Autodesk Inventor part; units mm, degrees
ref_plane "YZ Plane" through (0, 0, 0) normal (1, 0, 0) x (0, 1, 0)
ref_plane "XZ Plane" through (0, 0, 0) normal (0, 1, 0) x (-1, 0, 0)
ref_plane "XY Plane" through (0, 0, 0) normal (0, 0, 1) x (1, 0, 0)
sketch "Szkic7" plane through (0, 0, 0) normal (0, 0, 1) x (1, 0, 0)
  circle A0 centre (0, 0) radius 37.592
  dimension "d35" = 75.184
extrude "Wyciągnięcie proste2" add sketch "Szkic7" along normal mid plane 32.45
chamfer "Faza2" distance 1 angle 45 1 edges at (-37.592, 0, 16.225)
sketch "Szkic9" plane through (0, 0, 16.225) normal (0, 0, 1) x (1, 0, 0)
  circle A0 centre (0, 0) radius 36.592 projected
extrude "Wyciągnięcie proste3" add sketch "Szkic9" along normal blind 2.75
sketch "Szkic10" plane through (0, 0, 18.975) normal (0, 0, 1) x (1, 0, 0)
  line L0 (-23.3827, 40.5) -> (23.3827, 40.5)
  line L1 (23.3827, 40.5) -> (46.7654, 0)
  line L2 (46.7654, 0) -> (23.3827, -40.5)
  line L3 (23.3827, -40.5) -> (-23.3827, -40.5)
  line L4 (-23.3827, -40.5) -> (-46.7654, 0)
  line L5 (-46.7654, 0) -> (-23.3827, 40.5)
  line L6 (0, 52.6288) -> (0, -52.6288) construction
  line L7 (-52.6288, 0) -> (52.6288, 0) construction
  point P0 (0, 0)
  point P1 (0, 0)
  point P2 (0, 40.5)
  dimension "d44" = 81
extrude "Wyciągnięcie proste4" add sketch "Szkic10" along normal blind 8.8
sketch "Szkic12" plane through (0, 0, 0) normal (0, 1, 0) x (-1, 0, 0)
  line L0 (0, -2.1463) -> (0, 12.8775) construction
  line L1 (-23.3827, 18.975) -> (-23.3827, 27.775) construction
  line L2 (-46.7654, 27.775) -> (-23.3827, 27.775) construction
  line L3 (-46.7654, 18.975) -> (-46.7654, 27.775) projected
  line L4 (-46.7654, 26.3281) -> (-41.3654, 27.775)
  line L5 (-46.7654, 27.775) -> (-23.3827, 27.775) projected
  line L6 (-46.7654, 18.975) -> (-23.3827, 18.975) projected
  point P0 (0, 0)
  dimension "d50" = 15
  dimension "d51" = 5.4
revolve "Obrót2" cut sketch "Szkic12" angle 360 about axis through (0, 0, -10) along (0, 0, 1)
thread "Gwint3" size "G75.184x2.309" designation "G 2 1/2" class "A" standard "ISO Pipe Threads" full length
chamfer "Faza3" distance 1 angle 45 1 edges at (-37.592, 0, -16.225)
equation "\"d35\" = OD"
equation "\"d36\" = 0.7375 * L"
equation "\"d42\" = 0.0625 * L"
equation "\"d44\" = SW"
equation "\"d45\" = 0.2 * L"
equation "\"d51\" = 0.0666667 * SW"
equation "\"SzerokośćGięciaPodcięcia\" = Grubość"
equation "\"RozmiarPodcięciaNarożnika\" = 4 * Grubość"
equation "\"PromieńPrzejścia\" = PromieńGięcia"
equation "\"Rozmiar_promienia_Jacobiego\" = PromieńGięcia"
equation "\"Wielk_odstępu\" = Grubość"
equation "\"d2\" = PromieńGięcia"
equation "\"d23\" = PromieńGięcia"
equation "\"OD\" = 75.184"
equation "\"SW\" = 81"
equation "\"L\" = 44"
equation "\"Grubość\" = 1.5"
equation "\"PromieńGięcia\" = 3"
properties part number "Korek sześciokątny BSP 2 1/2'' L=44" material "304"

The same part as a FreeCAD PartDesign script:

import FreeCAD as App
import Part
import Sketcher
from FreeCAD import Vector
Q = App.Units.Quantity


def edges_at(feature, points):
    """Names of the edges that pass closest to the given points."""
    edges = feature.Shape.Edges
    near = lambda p: min(range(len(edges)), key=lambda i: edges[i].distToShape(Part.Vertex(*p))[0])
    return sorted({f"Edge{near(p) + 1}" for p in points})

doc = App.newDocument("Part")
body = doc.addObject("PartDesign::Body", "Body")

# Sketch on XY plane
sketch1 = body.newObject("Sketcher::SketchObject", "Sketch")
sketch1.AttachmentSupport = (doc.getObject("XY_Plane"), [""])
sketch1.MapMode = "FlatFace"
sketch1.addGeometry(Part.Circle(Vector(0, 0, 0), Vector(0, 0, 1), 38), False)
sketch1.addConstraint([
    Sketcher.Constraint("Coincident", 0, 3, -1, 1),
    Sketcher.Constraint("Diameter", 0, Q("75.184 mm")),
])
pad1 = body.newObject("PartDesign::Pad", "Pad")
pad1.Profile = sketch1
pad1.Length = 32.45
pad1.Midplane = True
doc.recompute()

chamfer = body.newObject("PartDesign::Chamfer", "Chamfer")
chamfer.Base = (pad1, edges_at(pad1, [(-37.592, 0, 16.225)]))
chamfer.Size = 1

# Sketch on XY plane
sketch2 = body.newObject("Sketcher::SketchObject", "Sketch001")
sketch2.AttachmentSupport = (doc.getObject("XY_Plane"), [""])
sketch2.MapMode = "FlatFace"
sketch2.AttachmentOffset = App.Placement(Vector(0, 0, 16.225), App.Rotation())
sketch2.addGeometry(Part.Circle(Vector(0, 0, 0), Vector(0, 0, 1), 37), False)
sketch2.addConstraint([
    Sketcher.Constraint("Coincident", 0, 3, -1, 1),
    Sketcher.Constraint("Diameter", 0, Q("73.184 mm")),
])
pad2 = body.newObject("PartDesign::Pad", "Pad001")
pad2.Profile = sketch2
pad2.Length = 2.75

# Sketch on XY plane
sketch3 = body.newObject("Sketcher::SketchObject", "Sketch002")
sketch3.AttachmentSupport = (doc.getObject("XY_Plane"), [""])
sketch3.MapMode = "FlatFace"
sketch3.AttachmentOffset = App.Placement(Vector(0, 0, 18.975), App.Rotation())
sketch3.addGeometry([
    Part.LineSegment(Vector(23, 40, 0), Vector(-23, 40, 0)),  # 0
    Part.LineSegment(Vector(-23, 40, 0), Vector(-47, 0, 0)),  # 1
    Part.LineSegment(Vector(-47, 0, 0), Vector(-23, -40, 0)),  # 2
    Part.LineSegment(Vector(-23, -40, 0), Vector(23, -40, 0)),  # 3
    Part.LineSegment(Vector(23, -40, 0), Vector(47, 0, 0)),  # 4
    Part.LineSegment(Vector(47, 0, 0), Vector(23, 40, 0)),  # 5
], False)
sketch3.addConstraint([
    Sketcher.Constraint("Coincident", 0, 2, 1, 1),
    Sketcher.Constraint("Coincident", 1, 2, 2, 1),
    Sketcher.Constraint("Coincident", 2, 2, 3, 1),
    Sketcher.Constraint("Coincident", 3, 2, 4, 1),
    Sketcher.Constraint("Coincident", 4, 2, 5, 1),
    Sketcher.Constraint("Coincident", 5, 2, 0, 1),
    Sketcher.Constraint("Horizontal", 0),
    Sketcher.Constraint("Horizontal", 3),
    Sketcher.Constraint("Symmetric", 0, 2, 3, 2, -1, 1),
    Sketcher.Constraint("Symmetric", 1, 2, 4, 2, -1, 1),
    Sketcher.Constraint("PointOnObject", 1, 2, -1),
    Sketcher.Constraint("Parallel", 2, 5),
    Sketcher.Constraint("Vertical", 0, 2, 2, 2),
    Sketcher.Constraint("DistanceY", 2, 2, 0, 2, Q("81 mm")),
    Sketcher.Constraint("Angle", 1, Q("-120 deg")),
    Sketcher.Constraint("DistanceX", 0, 2, 0, 1, Q("46.7654 mm")),
])
pad3 = body.newObject("PartDesign::Pad", "Pad002")
pad3.Profile = sketch3
pad3.Length = 8.8

# Sketch on XZ plane
sketch4 = body.newObject("Sketcher::SketchObject", "Sketch003")
sketch4.AttachmentSupport = (doc.getObject("XZ_Plane"), [""])
sketch4.MapMode = "FlatFace"
sketch4.addGeometry([
    Part.LineSegment(Vector(46.8, 27.8, 0), Vector(46.8, 26.3, 0)),
    Part.LineSegment(Vector(46.8, 26.3, 0), Vector(41.4, 27.8, 0)),
    Part.LineSegment(Vector(41.4, 27.8, 0), Vector(46.8, 27.8, 0)),
], False)
sketch4.addConstraint([
    Sketcher.Constraint("Coincident", 0, 2, 1, 1),
    Sketcher.Constraint("Coincident", 1, 2, 2, 1),
    Sketcher.Constraint("Coincident", 2, 2, 0, 1),
    Sketcher.Constraint("Vertical", 0),
    Sketcher.Constraint("Horizontal", 2),
    Sketcher.Constraint("DistanceX", 2, 1, 2, 2, Q("5.4 mm")),
    Sketcher.Constraint("Angle", 1, Q("165.0003 deg")),
    Sketcher.Constraint("DistanceY", -1, 1, 0, 2, Q("26.328 mm")),
    Sketcher.Constraint("DistanceX", -1, 1, 0, 2, Q("46.7654 mm")),
])
groove = body.newObject("PartDesign::Groove", "Groove")
groove.Profile = sketch4
groove.ReferenceAxis = (sketch4, ["V_Axis"])
groove.Angle = 360
doc.recompute()

chamfer2 = body.newObject("PartDesign::Chamfer", "Chamfer001")
chamfer2.Base = (groove, edges_at(groove, [(-37.592, 0, -16.225)]))
chamfer2.Size = 1

doc.recompute()
